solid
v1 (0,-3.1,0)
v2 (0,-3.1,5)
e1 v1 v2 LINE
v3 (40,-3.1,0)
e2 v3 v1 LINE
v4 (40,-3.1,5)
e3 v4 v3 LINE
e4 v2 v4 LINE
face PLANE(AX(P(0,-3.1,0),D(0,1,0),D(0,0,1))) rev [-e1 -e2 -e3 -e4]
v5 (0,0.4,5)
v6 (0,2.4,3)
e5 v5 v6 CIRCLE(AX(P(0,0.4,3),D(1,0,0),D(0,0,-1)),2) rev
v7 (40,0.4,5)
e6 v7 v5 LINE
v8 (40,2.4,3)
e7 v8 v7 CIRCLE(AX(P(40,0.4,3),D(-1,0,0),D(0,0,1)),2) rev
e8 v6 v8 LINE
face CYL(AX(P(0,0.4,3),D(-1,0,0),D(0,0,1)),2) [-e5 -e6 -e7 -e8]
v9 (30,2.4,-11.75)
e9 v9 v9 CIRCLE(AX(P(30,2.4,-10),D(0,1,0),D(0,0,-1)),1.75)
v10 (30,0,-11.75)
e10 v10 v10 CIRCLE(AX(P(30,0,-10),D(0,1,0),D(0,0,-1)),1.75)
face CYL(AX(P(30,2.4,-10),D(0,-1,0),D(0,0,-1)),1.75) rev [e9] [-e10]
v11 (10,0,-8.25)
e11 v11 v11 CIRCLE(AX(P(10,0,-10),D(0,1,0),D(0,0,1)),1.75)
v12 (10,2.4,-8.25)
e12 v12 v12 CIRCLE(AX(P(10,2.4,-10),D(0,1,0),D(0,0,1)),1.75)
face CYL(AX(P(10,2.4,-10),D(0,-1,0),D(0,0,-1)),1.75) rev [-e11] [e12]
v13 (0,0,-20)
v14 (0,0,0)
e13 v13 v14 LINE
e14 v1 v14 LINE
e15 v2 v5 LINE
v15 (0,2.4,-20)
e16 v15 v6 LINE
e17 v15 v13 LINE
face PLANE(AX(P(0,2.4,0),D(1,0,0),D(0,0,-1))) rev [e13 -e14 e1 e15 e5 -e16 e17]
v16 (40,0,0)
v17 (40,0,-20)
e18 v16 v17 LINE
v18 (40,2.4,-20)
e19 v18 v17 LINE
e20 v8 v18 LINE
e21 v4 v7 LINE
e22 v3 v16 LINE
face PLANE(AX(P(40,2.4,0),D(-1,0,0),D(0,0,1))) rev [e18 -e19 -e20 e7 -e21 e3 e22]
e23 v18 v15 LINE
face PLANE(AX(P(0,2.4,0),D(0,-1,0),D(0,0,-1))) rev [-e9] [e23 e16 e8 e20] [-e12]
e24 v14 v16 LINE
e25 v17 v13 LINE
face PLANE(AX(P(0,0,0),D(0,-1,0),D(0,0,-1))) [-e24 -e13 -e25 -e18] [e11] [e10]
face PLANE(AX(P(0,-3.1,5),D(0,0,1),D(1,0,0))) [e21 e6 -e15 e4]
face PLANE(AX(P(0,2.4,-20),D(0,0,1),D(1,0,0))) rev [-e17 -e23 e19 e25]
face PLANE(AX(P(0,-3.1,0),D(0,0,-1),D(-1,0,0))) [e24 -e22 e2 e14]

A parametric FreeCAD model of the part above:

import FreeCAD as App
import Part
import Sketcher

V = App.Vector


def edges_at(feature, points):
    """Names of the edges that pass closest to the given points."""
    edges = feature.Shape.Edges
    near = lambda p: min(range(len(edges)), key=lambda i: edges[i].distToShape(Part.Vertex(*p))[0])
    return sorted({f"Edge{near(p) + 1}" for p in points})

doc = App.newDocument("Part")
params = doc.addObject("Spreadsheet::Sheet", "Params")
for row, (alias, value) in enumerate([
    ("sketch1_diameter", "3.5 mm"),
    ("sketch1_width", "40 mm"),
    ("sketch1_height", "20 mm"),
    ("pad1_length", "2.4 mm"),
    ("sketch2_width", "40 mm"),
    ("sketch2_height", "5 mm"),
    ("pad2_length", "5.5 mm"),
    ("fillet_radius", "2 mm"),
], start=1):
    params.set(f"A{row}", alias)
    params.set(f"B{row}", "=" + value)
    params.setAlias(f"B{row}", alias)

body = doc.addObject("PartDesign::Body", "Body")

# Sketch on XZ plane
sketch1 = body.newObject("Sketcher::SketchObject", "Sketch")
sketch1.AttachmentSupport = (doc.getObject("XZ_Plane"), [""])
sketch1.MapMode = "FlatFace"
sketch1.addGeometry(Part.LineSegment(V(0, -20, 0), V(0, 0, 0)), False)
sketch1.addGeometry(Part.LineSegment(V(0, 0, 0), V(40, 0, 0)), False)
sketch1.addGeometry(Part.LineSegment(V(40, 0, 0), V(40, -20, 0)), False)
sketch1.addGeometry(Part.LineSegment(V(40, -20, 0), V(0, -20, 0)), False)
sketch1.addGeometry(Part.Circle(V(10, -10, 0), V(0, 0, 1), 1.75), False)
sketch1.addGeometry(Part.Circle(V(30, -10, 0), V(0, 0, 1), 1.75), False)
sketch1.addConstraint(Sketcher.Constraint("Coincident", 0, 2, 1, 1))
sketch1.addConstraint(Sketcher.Constraint("Coincident", 1, 2, 2, 1))
sketch1.addConstraint(Sketcher.Constraint("Coincident", 2, 2, 3, 1))
sketch1.addConstraint(Sketcher.Constraint("Coincident", 3, 2, 0, 1))
sketch1.addConstraint(Sketcher.Constraint("Vertical", 0))
sketch1.addConstraint(Sketcher.Constraint("Horizontal", 1))
sketch1.addConstraint(Sketcher.Constraint("Vertical", 2))
sketch1.addConstraint(Sketcher.Constraint("Horizontal", 3))
sketch1.addConstraint(Sketcher.Constraint("Coincident", 0, 2, -1, 1))
sketch1.addConstraint(Sketcher.Constraint("Equal", 4, 5))
sketch1.addConstraint(Sketcher.Constraint("Horizontal", 4, 3, 5, 3))
sketch1.addConstraint(Sketcher.Constraint("Diameter", 4, 3.5))
sketch1.addConstraint(Sketcher.Constraint("DistanceX", 1, 1, 1, 2, 40.0))
sketch1.addConstraint(Sketcher.Constraint("DistanceY", 0, 1, 0, 2, 20.0))
sketch1.addConstraint(Sketcher.Constraint("DistanceX", -1, 1, 4, 3, 10.0))
sketch1.addConstraint(Sketcher.Constraint("DistanceY", 4, 3, -1, 1, 10.0))
sketch1.addConstraint(Sketcher.Constraint("DistanceX", -1, 1, 5, 3, 30.0))
sketch1.setExpression("Constraints[11]", "Params.sketch1_diameter")
sketch1.setExpression("Constraints[12]", "Params.sketch1_width")
sketch1.setExpression("Constraints[13]", "Params.sketch1_height")
pad1 = body.newObject("PartDesign::Pad", "Pad")
pad1.Profile = sketch1
pad1.setExpression("Length", "Params.pad1_length")
pad1.Reversed = True

# Sketch on XZ plane
sketch2 = body.newObject("Sketcher::SketchObject", "Sketch001")
sketch2.AttachmentSupport = (doc.getObject("XZ_Plane"), [""])
sketch2.MapMode = "FlatFace"
sketch2.AttachmentOffset = App.Placement(V(0, 0, -2.4), App.Rotation())
sketch2.addGeometry(Part.LineSegment(V(0, 0, 0), V(0, 5, 0)), False)
sketch2.addGeometry(Part.LineSegment(V(0, 5, 0), V(40, 5, 0)), False)
sketch2.addGeometry(Part.LineSegment(V(40, 5, 0), V(40, 0, 0)), False)
sketch2.addGeometry(Part.LineSegment(V(40, 0, 0), V(0, 0, 0)), False)
sketch2.addConstraint(Sketcher.Constraint("Coincident", 0, 2, 1, 1))
sketch2.addConstraint(Sketcher.Constraint("Coincident", 1, 2, 2, 1))
sketch2.addConstraint(Sketcher.Constraint("Coincident", 2, 2, 3, 1))
sketch2.addConstraint(Sketcher.Constraint("Coincident", 3, 2, 0, 1))
sketch2.addConstraint(Sketcher.Constraint("Vertical", 0))
sketch2.addConstraint(Sketcher.Constraint("Horizontal", 1))
sketch2.addConstraint(Sketcher.Constraint("Vertical", 2))
sketch2.addConstraint(Sketcher.Constraint("Horizontal", 3))
sketch2.addConstraint(Sketcher.Constraint("Coincident", 3, 2, -1, 1))
sketch2.addConstraint(Sketcher.Constraint("DistanceX", 1, 1, 1, 2, 40.0))
sketch2.addConstraint(Sketcher.Constraint("DistanceY", 0, 1, 0, 2, 5.0))
sketch2.setExpression("Constraints[9]", "Params.sketch2_width")
sketch2.setExpression("Constraints[10]", "Params.sketch2_height")
pad2 = body.newObject("PartDesign::Pad", "Pad001")
pad2.Profile = sketch2
pad2.setExpression("Length", "Params.pad2_length")
doc.recompute()

fillet = body.newObject("PartDesign::Fillet", "Fillet")
fillet.Base = (pad2, edges_at(pad2, [(20, 2.4, 5)]))
fillet.setExpression("Radius", "Params.fillet_radius")

doc.recompute()
